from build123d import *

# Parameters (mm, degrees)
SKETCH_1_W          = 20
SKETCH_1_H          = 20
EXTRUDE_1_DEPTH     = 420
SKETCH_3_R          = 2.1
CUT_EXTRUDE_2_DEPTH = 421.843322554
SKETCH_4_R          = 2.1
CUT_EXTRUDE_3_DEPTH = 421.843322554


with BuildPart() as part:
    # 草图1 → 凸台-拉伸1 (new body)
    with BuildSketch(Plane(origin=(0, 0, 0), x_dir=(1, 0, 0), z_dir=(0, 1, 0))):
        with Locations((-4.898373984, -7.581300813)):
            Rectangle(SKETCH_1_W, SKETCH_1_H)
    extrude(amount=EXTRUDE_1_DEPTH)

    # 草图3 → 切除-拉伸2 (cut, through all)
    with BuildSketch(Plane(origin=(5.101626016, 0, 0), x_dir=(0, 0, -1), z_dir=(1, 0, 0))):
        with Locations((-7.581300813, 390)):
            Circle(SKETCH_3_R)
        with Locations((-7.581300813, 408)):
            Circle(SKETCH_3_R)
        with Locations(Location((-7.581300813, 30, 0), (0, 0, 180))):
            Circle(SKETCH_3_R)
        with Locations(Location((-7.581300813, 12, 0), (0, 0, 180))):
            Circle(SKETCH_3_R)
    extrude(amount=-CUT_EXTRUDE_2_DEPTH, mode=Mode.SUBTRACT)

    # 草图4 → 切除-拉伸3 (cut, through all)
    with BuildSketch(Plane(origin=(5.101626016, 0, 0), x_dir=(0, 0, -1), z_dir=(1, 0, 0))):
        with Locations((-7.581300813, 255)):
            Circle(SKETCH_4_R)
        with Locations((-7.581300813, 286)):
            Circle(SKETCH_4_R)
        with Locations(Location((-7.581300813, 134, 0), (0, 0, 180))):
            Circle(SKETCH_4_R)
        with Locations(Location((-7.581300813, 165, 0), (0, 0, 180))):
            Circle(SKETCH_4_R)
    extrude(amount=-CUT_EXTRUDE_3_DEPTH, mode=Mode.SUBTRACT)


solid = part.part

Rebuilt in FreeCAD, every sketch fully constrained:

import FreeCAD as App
import Part
import Sketcher

doc = App.newDocument("Part")
body = doc.addObject("PartDesign::Body", "Body")

# Sketch on XZ plane
sketch1 = body.newObject("Sketcher::SketchObject", "Sketch")
sketch1.AttachmentSupport = (doc.getObject("XZ_Plane"), [""])
sketch1.MapMode = "FlatFace"
sketch1.addGeometry([
    Part.LineSegment(App.Vector(-15, -2, 0), App.Vector(-15, 18, 0)),
    Part.LineSegment(App.Vector(-15, 18, 0), App.Vector(5, 18, 0)),
    Part.LineSegment(App.Vector(5, 18, 0), App.Vector(5, -2, 0)),
    Part.LineSegment(App.Vector(5, -2, 0), App.Vector(-15, -2, 0)),
], False)
sketch1.addConstraint([
    Sketcher.Constraint("Coincident", 0, 2, 1, 1),
    Sketcher.Constraint("Coincident", 1, 2, 2, 1),
    Sketcher.Constraint("Coincident", 2, 2, 3, 1),
    Sketcher.Constraint("Coincident", 3, 2, 0, 1),
    Sketcher.Constraint("Vertical", 0),
    Sketcher.Constraint("Horizontal", 1),
    Sketcher.Constraint("Vertical", 2),
    Sketcher.Constraint("Horizontal", 3),
    Sketcher.Constraint("Equal", 3, 0),
    Sketcher.Constraint("DistanceX", 1, 1, 1, 2, 20.0),
    Sketcher.Constraint("DistanceY", -1, 1, 0, 2, 17.581301),
    Sketcher.Constraint("DistanceX", 0, 2, -1, 1, 14.898374),
])
pad1 = body.newObject("PartDesign::Pad", "Pad")
pad1.Profile = sketch1
pad1.Length = 420
pad1.Reversed = True

# Sketch on YZ plane
sketch2 = body.newObject("Sketcher::SketchObject", "Sketch001")
sketch2.AttachmentSupport = (doc.getObject("YZ_Plane"), [""])
sketch2.MapMode = "FlatFace"
sketch2.AttachmentOffset = App.Placement(App.Vector(0, 0, 5.101626), App.Rotation())
sketch2.addGeometry([
    Part.Circle(App.Vector(390, 7.6, 0), App.Vector(0, 0, 1), 2.1),
    Part.Circle(App.Vector(408, 7.6, 0), App.Vector(0, 0, 1), 2.1),
    Part.Circle(App.Vector(30, 7.6, 0), App.Vector(0, 0, 1), 2.1),
    Part.Circle(App.Vector(12, 7.6, 0), App.Vector(0, 0, 1), 2.1),
], False)
sketch2.addConstraint([
    Sketcher.Constraint("Equal", 0, 1),
    Sketcher.Constraint("Equal", 1, 2),
    Sketcher.Constraint("Equal", 2, 3),
    Sketcher.Constraint("Horizontal", 0, 3, 1, 3),
    Sketcher.Constraint("Horizontal", 1, 3, 2, 3),
    Sketcher.Constraint("Horizontal", 2, 3, 3, 3),
    Sketcher.Constraint("Diameter", 0, 4.2),
    Sketcher.Constraint("DistanceX", -1, 1, 0, 3, 390.0),
    Sketcher.Constraint("DistanceX", -1, 1, 1, 3, 408.0),
    Sketcher.Constraint("DistanceX", -1, 1, 2, 3, 30.0),
    Sketcher.Constraint("DistanceX", -1, 1, 3, 3, 12.0),
    Sketcher.Constraint("DistanceY", -1, 1, 0, 3, 7.581301),
])
pocket1 = body.newObject("PartDesign::Pocket", "Pocket")
pocket1.Profile = sketch2
pocket1.Type = "ThroughAll"

# Sketch on YZ plane
sketch3 = body.newObject("Sketcher::SketchObject", "Sketch002")
sketch3.AttachmentSupport = (doc.getObject("YZ_Plane"), [""])
sketch3.MapMode = "FlatFace"
sketch3.AttachmentOffset = App.Placement(App.Vector(0, 0, 5.101626), App.Rotation())
sketch3.addGeometry([
    Part.Circle(App.Vector(255, 7.6, 0), App.Vector(0, 0, 1), 2.1),
    Part.Circle(App.Vector(286, 7.6, 0), App.Vector(0, 0, 1), 2.1),
    Part.Circle(App.Vector(134, 7.6, 0), App.Vector(0, 0, 1), 2.1),
    Part.Circle(App.Vector(165, 7.6, 0), App.Vector(0, 0, 1), 2.1),
], False)
sketch3.addConstraint([
    Sketcher.Constraint("Equal", 0, 1),
    Sketcher.Constraint("Equal", 1, 2),
    Sketcher.Constraint("Equal", 2, 3),
    Sketcher.Constraint("Horizontal", 0, 3, 1, 3),
    Sketcher.Constraint("Horizontal", 1, 3, 2, 3),
    Sketcher.Constraint("Horizontal", 2, 3, 3, 3),
    Sketcher.Constraint("Diameter", 0, 4.2),
    Sketcher.Constraint("DistanceX", -1, 1, 0, 3, 255.0),
    Sketcher.Constraint("DistanceX", -1, 1, 1, 3, 286.0),
    Sketcher.Constraint("DistanceX", -1, 1, 2, 3, 134.0),
    Sketcher.Constraint("DistanceX", -1, 1, 3, 3, 165.0),
    Sketcher.Constraint("DistanceY", -1, 1, 0, 3, 7.581301),
])
pocket2 = body.newObject("PartDesign::Pocket", "Pocket001")
pocket2.Profile = sketch3
pocket2.Type = "ThroughAll"

doc.recompute()
